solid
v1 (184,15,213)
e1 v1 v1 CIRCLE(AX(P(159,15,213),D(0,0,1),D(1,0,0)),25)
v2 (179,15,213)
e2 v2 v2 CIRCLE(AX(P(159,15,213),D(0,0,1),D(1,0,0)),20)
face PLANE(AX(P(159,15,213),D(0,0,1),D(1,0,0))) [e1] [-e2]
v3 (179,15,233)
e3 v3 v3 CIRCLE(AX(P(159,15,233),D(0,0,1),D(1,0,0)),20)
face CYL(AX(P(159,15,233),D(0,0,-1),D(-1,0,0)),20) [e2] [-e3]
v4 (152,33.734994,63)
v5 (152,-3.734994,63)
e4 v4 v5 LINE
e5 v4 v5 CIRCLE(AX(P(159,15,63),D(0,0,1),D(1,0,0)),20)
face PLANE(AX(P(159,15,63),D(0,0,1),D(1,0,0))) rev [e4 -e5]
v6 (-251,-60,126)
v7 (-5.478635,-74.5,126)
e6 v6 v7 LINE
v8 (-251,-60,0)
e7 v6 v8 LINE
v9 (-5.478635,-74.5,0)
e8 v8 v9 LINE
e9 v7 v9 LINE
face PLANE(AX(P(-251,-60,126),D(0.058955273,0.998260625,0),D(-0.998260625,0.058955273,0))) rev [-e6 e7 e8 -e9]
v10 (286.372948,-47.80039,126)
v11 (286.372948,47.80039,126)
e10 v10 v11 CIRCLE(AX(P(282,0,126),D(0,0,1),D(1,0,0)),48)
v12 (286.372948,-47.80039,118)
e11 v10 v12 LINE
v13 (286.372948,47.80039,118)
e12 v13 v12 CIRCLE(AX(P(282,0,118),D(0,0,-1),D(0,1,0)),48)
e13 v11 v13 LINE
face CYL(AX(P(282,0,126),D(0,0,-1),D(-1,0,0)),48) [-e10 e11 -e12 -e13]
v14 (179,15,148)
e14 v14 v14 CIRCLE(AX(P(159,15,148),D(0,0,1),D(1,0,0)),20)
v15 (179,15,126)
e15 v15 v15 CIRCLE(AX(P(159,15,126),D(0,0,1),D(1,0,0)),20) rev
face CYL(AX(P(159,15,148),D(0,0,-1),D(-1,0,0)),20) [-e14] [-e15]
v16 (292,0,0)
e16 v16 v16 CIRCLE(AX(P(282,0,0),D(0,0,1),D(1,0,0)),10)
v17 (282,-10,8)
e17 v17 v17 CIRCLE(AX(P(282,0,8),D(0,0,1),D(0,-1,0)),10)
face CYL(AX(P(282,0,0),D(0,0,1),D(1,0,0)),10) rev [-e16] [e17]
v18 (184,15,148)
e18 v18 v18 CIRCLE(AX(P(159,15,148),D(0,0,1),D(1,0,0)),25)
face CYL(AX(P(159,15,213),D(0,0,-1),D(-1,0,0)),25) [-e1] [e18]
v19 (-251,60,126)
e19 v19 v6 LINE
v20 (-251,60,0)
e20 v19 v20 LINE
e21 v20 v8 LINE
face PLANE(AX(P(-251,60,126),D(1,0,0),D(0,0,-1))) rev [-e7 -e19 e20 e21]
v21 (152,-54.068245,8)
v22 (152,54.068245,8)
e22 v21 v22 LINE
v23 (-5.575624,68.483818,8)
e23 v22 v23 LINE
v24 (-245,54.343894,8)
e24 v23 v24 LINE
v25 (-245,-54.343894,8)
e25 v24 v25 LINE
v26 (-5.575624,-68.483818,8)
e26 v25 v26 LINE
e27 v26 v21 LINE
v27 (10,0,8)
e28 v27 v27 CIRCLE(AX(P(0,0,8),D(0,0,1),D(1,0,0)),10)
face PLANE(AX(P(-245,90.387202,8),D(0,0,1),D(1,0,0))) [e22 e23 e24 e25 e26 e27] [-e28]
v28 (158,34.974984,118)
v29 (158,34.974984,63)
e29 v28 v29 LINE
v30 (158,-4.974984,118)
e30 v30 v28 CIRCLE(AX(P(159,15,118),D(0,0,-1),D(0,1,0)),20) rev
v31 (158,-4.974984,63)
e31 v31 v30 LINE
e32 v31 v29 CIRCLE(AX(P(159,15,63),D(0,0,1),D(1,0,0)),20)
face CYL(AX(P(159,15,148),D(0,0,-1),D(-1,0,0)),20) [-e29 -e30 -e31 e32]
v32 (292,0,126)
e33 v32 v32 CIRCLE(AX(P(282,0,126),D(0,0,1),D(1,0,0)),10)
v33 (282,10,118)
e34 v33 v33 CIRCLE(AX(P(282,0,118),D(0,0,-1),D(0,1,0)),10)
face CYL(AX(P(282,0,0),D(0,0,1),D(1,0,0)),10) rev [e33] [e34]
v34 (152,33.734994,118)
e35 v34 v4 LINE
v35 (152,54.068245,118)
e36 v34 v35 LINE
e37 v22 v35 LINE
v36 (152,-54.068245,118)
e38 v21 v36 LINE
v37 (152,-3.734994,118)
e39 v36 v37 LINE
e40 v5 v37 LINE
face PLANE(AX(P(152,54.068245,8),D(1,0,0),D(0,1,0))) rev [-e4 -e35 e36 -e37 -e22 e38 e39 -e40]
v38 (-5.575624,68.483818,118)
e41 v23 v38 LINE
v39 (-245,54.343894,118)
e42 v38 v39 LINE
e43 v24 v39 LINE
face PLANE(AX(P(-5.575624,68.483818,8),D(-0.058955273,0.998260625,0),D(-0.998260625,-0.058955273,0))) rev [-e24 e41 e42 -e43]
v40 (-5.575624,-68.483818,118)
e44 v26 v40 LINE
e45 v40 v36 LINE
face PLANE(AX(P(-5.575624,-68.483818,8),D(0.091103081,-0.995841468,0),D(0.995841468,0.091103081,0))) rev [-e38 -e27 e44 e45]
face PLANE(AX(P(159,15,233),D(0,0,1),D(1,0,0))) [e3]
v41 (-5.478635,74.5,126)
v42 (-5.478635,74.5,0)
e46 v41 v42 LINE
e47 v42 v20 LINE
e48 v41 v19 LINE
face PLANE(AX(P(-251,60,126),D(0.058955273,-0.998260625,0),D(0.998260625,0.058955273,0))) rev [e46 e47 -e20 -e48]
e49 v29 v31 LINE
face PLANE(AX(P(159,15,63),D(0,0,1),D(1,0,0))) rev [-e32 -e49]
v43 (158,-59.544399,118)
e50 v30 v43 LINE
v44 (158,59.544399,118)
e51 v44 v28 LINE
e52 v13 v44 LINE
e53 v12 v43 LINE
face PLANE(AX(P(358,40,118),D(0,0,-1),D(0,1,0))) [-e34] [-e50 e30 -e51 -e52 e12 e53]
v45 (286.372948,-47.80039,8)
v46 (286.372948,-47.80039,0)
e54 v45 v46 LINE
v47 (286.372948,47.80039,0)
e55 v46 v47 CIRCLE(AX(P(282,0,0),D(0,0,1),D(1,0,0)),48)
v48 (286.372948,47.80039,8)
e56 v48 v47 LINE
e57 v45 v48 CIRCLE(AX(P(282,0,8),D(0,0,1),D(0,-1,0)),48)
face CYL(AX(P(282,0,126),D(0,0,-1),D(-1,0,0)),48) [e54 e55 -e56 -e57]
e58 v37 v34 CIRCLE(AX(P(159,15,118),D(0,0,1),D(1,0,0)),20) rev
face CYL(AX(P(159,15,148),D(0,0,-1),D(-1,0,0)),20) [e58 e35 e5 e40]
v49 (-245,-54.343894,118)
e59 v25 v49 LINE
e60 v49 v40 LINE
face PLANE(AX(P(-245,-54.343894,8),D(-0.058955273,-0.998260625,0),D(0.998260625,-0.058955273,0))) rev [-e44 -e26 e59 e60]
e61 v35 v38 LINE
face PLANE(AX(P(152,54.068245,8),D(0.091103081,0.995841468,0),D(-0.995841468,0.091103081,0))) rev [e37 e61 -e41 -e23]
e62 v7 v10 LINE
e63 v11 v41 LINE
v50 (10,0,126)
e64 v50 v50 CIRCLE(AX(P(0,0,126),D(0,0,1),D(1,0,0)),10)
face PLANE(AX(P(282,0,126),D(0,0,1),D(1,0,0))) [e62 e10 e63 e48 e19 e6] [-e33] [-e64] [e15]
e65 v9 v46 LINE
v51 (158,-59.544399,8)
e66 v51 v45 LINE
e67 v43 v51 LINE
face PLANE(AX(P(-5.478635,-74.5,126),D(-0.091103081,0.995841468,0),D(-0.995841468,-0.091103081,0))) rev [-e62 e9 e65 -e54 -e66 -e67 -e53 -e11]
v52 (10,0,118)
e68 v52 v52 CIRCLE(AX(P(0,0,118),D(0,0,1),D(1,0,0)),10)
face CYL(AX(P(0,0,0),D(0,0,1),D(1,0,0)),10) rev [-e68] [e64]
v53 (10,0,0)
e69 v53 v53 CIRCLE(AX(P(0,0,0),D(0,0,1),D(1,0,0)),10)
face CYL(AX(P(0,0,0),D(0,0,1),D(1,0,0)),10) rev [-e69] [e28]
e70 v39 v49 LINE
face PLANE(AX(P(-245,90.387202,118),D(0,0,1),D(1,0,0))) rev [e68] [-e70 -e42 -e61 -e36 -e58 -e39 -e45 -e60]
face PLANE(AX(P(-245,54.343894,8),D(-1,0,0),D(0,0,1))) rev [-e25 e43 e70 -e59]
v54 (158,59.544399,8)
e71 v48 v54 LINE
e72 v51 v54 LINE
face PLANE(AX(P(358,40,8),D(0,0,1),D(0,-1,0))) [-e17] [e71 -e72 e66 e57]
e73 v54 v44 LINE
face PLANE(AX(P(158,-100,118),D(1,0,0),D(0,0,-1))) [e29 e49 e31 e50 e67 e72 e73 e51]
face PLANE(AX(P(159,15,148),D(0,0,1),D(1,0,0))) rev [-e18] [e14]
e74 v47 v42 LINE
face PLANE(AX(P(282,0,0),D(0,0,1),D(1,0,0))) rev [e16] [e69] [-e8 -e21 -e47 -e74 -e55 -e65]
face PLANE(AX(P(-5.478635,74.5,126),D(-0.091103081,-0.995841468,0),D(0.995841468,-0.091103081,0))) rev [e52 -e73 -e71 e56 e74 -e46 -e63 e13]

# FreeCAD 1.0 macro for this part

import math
import FreeCAD as App
import Part
import Sketcher

doc = App.newDocument("Part")
body = doc.addObject("PartDesign::Body", "Body")

sketch1 = body.newObject("Sketcher::SketchObject", "Sketch")
sketch1.AttachmentSupport = (doc.getObject("XY_Plane"), [""])
sketch1.MapMode = "FlatFace"
sketch1.addGeometry([
    Part.LineSegment(App.Vector(-251, 60, 0), App.Vector(-251, -60, 0)),
    Part.LineSegment(App.Vector(-251, -60, 0), App.Vector(-5, -74, 0)),
    Part.LineSegment(App.Vector(-5, -74, 0), App.Vector(286, -48, 0)),
    Part.ArcOfCircle(Part.Circle(App.Vector(282, 0, 0), App.Vector(0, 0, 1), 48), math.radians(-85), math.radians(85)),
    Part.LineSegment(App.Vector(286, 48, 0), App.Vector(-5, 74, 0)),
    Part.LineSegment(App.Vector(-5, 74, 0), App.Vector(-251, 60, 0)),
], False)
sketch1.addConstraint([
    Sketcher.Constraint("Coincident", 0, 2, 1, 1),
    Sketcher.Constraint("Coincident", 1, 2, 2, 1),
    Sketcher.Constraint("Tangent", 2, 2, 3, 1),
    Sketcher.Constraint("Tangent", 3, 2, 4, 1),
    Sketcher.Constraint("Coincident", 4, 2, 5, 1),
    Sketcher.Constraint("Coincident", 5, 2, 0, 1),
    Sketcher.Constraint("Vertical", 0),
    Sketcher.Constraint("Symmetric", 2, 2, 3, 2, -1),
    Sketcher.Constraint("Vertical", 1, 2, 4, 2),
    Sketcher.Constraint("Equal", 1, 5),
    Sketcher.Constraint("Radius", 3, 48.0),
    Sketcher.Constraint("DistanceY", 0, 2, 0, 1, 120.0),
    Sketcher.Constraint("DistanceX", -1, 1, 3, 3, 282.0),
    Sketcher.Constraint("DistanceX", 0, 2, -1, 1, 251.0),
    Sketcher.Constraint("DistanceY", 1, 2, 4, 2, 149.0),
    Sketcher.Constraint("Distance", 1, 245.949163),
])
pad1 = body.newObject("PartDesign::Pad", "Pad")
pad1.Profile = sketch1
pad1.Length = 126

sketch2 = body.newObject("Sketcher::SketchObject", "Sketch001")
sketch2.AttachmentSupport = (doc.getObject("YZ_Plane"), [""])
sketch2.MapMode = "FlatFace"
sketch2.AttachmentOffset = App.Placement(App.Vector(0, 0, 158), App.Rotation())
sketch2.addGeometry([
    Part.LineSegment(App.Vector(40, 118, 0), App.Vector(-100, 118, 0)),
    Part.LineSegment(App.Vector(-100, 118, 0), App.Vector(-100, 8, 0)),
    Part.LineSegment(App.Vector(-100, 8, 0), App.Vector(40, 8, 0)),
    Part.LineSegment(App.Vector(40, 8, 0), App.Vector(40, 118, 0)),
], False)
sketch2.addConstraint([
    Sketcher.Constraint("Coincident", 0, 2, 1, 1),
    Sketcher.Constraint("Coincident", 1, 2, 2, 1),
    Sketcher.Constraint("Coincident", 2, 2, 3, 1),
    Sketcher.Constraint("Coincident", 3, 2, 0, 1),
    Sketcher.Constraint("Horizontal", 0),
    Sketcher.Constraint("Vertical", 1),
    Sketcher.Constraint("Horizontal", 2),
    Sketcher.Constraint("Vertical", 3),
    Sketcher.Constraint("DistanceX", 0, 2, 0, 1, 140.0),
    Sketcher.Constraint("DistanceY", 1, 2, 1, 1, 110.0),
    Sketcher.Constraint("DistanceX", 0, 2, -1, 1, 100.0),
    Sketcher.Constraint("DistanceY", -1, 1, 0, 2, 118.0),
])
pocket1 = body.newObject("PartDesign::Pocket", "Pocket")
pocket1.Profile = sketch2
pocket1.Length = 200
pocket1.Reversed = True

sketch3 = body.newObject("Sketcher::SketchObject", "Sketch002")
sketch3.AttachmentSupport = (doc.getObject("XY_Plane"), [""])
sketch3.MapMode = "FlatFace"
sketch3.AttachmentOffset = App.Placement(App.Vector(0, 0, 63), App.Rotation())
sketch3.addGeometry([
    Part.LineSegment(App.Vector(-313, 137, 0), App.Vector(-313, -137, 0)),
    Part.LineSegment(App.Vector(-313, -137, 0), App.Vector(392, -137, 0)),
    Part.LineSegment(App.Vector(392, -137, 0), App.Vector(392, 137, 0)),
    Part.LineSegment(App.Vector(392, 137, 0), App.Vector(-313, 137, 0)),
    Part.LineSegment(App.Vector(-251, -60, 0), App.Vector(-251, 60, 0)),
    Part.LineSegment(App.Vector(-251, 60, 0), App.Vector(-5, 74, 0)),
    Part.LineSegment(App.Vector(-5, 74, 0), App.Vector(158, 60, 0)),
    Part.LineSegment(App.Vector(158, 60, 0), App.Vector(158, -60, 0)),
    Part.LineSegment(App.Vector(158, -60, 0), App.Vector(-5, -74, 0)),
    Part.LineSegment(App.Vector(-5, -74, 0), App.Vector(-251, -60, 0)),
    Part.LineSegment(App.Vector(152, -54, 0), App.Vector(152, 54, 0)),
    Part.LineSegment(App.Vector(152, 54, 0), App.Vector(-6, 68, 0)),
    Part.LineSegment(App.Vector(-6, 68, 0), App.Vector(-245, 54, 0)),
    Part.LineSegment(App.Vector(-245, 54, 0), App.Vector(-245, -54, 0)),
    Part.LineSegment(App.Vector(-245, -54, 0), App.Vector(-6, -68, 0)),
    Part.LineSegment(App.Vector(-6, -68, 0), App.Vector(152, -54, 0)),
], False)
sketch3.addConstraint([
    Sketcher.Constraint("Coincident", 0, 2, 1, 1),
    Sketcher.Constraint("Coincident", 1, 2, 2, 1),
    Sketcher.Constraint("Coincident", 2, 2, 3, 1),
    Sketcher.Constraint("Coincident", 3, 2, 0, 1),
    Sketcher.Constraint("Coincident", 4, 2, 5, 1),
    Sketcher.Constraint("Coincident", 5, 2, 6, 1),
    Sketcher.Constraint("Coincident", 6, 2, 7, 1),
    Sketcher.Constraint("Coincident", 7, 2, 8, 1),
    Sketcher.Constraint("Coincident", 8, 2, 9, 1),
    Sketcher.Constraint("Coincident", 9, 2, 4, 1),
    Sketcher.Constraint("Coincident", 10, 2, 11, 1),
    Sketcher.Constraint("Coincident", 11, 2, 12, 1),
    Sketcher.Constraint("Coincident", 12, 2, 13, 1),
    Sketcher.Constraint("Coincident", 13, 2, 14, 1),
    Sketcher.Constraint("Coincident", 14, 2, 15, 1),
    Sketcher.Constraint("Coincident", 15, 2, 10, 1),
    Sketcher.Constraint("Vertical", 0),
    Sketcher.Constraint("Horizontal", 1),
    Sketcher.Constraint("Vertical", 2),
    Sketcher.Constraint("Horizontal", 3),
    Sketcher.Constraint("Vertical", 4),
    Sketcher.Constraint("Vertical", 7),
    Sketcher.Constraint("Vertical", 10),
    Sketcher.Constraint("Vertical", 13),
    Sketcher.Constraint("Symmetric", 5, 2, 8, 2, -1),
    Sketcher.Constraint("Symmetric", 11, 2, 14, 2, -1),
    Sketcher.Constraint("Parallel", 6, 11),
    Sketcher.Constraint("Parallel", 5, 12),
    Sketcher.Constraint("Parallel", 9, 14),
    Sketcher.Constraint("Parallel", 8, 15),
    Sketcher.Constraint("Equal", 6, 8),
    Sketcher.Constraint("Equal", 5, 9),
    Sketcher.Constraint("DistanceY", 4, 1, 4, 2, 120.0),
    Sketcher.Constraint("DistanceX", 4, 2, -1, 1, 251.0),
    Sketcher.Constraint("DistanceX", -1, 1, 6, 2, 158.0),
    Sketcher.Constraint("DistanceX", -1, 1, 10, 2, 152.0),
    Sketcher.Constraint("DistanceX", 12, 2, -1, 1, 245.0),
    Sketcher.Constraint("DistanceY", 8, 2, 5, 2, 149.0),
    Sketcher.Constraint("DistanceX", 1, 1, 1, 2, 705.578),
    Sketcher.Constraint("DistanceY", 0, 2, 0, 1, 273.578),
    Sketcher.Constraint("DistanceY", 7, 2, 7, 1, 119.088799),
    Sketcher.Constraint("DistanceX", 0, 2, -1, 1, 313.289),
    Sketcher.Constraint("DistanceY", 0, 2, -1, 1, 136.789),
    Sketcher.Constraint("DistanceY", 10, 1, 10, 2, 108.13649),
    Sketcher.Constraint("Distance", 12, 239.84155),
    Sketcher.Constraint("DistanceY", 13, 2, 13, 1, 108.687787),
])
pocket2 = body.newObject("PartDesign::Pocket", "Pocket001")
pocket2.Profile = sketch3
pocket2.Type = "TwoLengths"
pocket2.Length = 55
pocket2.Length2 = 55
pocket2.Reversed = True

sketch4 = body.newObject("Sketcher::SketchObject", "Sketch003")
sketch4.AttachmentSupport = (doc.getObject("XY_Plane"), [""])
sketch4.MapMode = "FlatFace"
sketch4.AttachmentOffset = App.Placement(App.Vector(0, 0, 63), App.Rotation())
sketch4.addGeometry(Part.Circle(App.Vector(159, 15, 0), App.Vector(0, 0, 1), 20), False)
sketch4.addConstraint([
    Sketcher.Constraint("Diameter", 0, 40.0),
    Sketcher.Constraint("DistanceX", -1, 1, 0, 3, 159.0),
    Sketcher.Constraint("DistanceY", -1, 1, 0, 3, 15.0),
])
pad2 = body.newObject("PartDesign::Pad", "Pad001")
pad2.Profile = sketch4
pad2.Length = 85

sketch5 = body.newObject("Sketcher::SketchObject", "Sketch004")
sketch5.AttachmentSupport = (doc.getObject("XY_Plane"), [""])
sketch5.MapMode = "FlatFace"
sketch5.AttachmentOffset = App.Placement(App.Vector(0, 0, 148), App.Rotation())
sketch5.addGeometry(Part.Circle(App.Vector(159, 15, 0), App.Vector(0, 0, 1), 25), False)
sketch5.addConstraint([
    Sketcher.Constraint("Diameter", 0, 50.0),
    Sketcher.Constraint("DistanceX", -1, 1, 0, 3, 159.0),
    Sketcher.Constraint("DistanceY", -1, 1, 0, 3, 15.0),
])
pad3 = body.newObject("PartDesign::Pad", "Pad002")
pad3.Profile = sketch5
pad3.Length = 65

sketch6 = body.newObject("Sketcher::SketchObject", "Sketch005")
sketch6.AttachmentSupport = (doc.getObject("XY_Plane"), [""])
sketch6.MapMode = "FlatFace"
sketch6.AttachmentOffset = App.Placement(App.Vector(0, 0, 213), App.Rotation())
sketch6.addGeometry(Part.Circle(App.Vector(159, 15, 0), App.Vector(0, 0, 1), 20), False)
sketch6.addConstraint([
    Sketcher.Constraint("Diameter", 0, 40.0),
    Sketcher.Constraint("DistanceX", -1, 1, 0, 3, 159.0),
    Sketcher.Constraint("DistanceY", -1, 1, 0, 3, 15.0),
])
pad4 = body.newObject("PartDesign::Pad", "Pad003")
pad4.Profile = sketch6
pad4.Length = 20

sketch7 = body.newObject("Sketcher::SketchObject", "Sketch006")
sketch7.AttachmentSupport = (doc.getObject("XY_Plane"), [""])
sketch7.MapMode = "FlatFace"
sketch7.AttachmentOffset = App.Placement(App.Vector(0, 0, 126), App.Rotation())
sketch7.addGeometry(Part.Circle(App.Vector(282, 0, 0), App.Vector(0, 0, 1), 10), False)
sketch7.addConstraint([
    Sketcher.Constraint("PointOnObject", 0, 3, -1),
    Sketcher.Constraint("Diameter", 0, 20.0),
    Sketcher.Constraint("DistanceX", -1, 1, 0, 3, 282.0),
])
pocket3 = body.newObject("PartDesign::Pocket", "Pocket002")
pocket3.Profile = sketch7
pocket3.Type = "ThroughAll"

sketch8 = body.newObject("Sketcher::SketchObject", "Sketch007")
sketch8.AttachmentSupport = (doc.getObject("XY_Plane"), [""])
sketch8.MapMode = "FlatFace"
sketch8.AttachmentOffset = App.Placement(App.Vector(0, 0, 126), App.Rotation())
sketch8.addGeometry(Part.Circle(App.Vector(0, 0, 0), App.Vector(0, 0, 1), 10), False)
sketch8.addConstraint([
    Sketcher.Constraint("Coincident", 0, 3, -1, 1),
    Sketcher.Constraint("Diameter", 0, 20.0),
])
pocket4 = body.newObject("PartDesign::Pocket", "Pocket003")
pocket4.Profile = sketch8
pocket4.Type = "ThroughAll"

doc.recompute()
